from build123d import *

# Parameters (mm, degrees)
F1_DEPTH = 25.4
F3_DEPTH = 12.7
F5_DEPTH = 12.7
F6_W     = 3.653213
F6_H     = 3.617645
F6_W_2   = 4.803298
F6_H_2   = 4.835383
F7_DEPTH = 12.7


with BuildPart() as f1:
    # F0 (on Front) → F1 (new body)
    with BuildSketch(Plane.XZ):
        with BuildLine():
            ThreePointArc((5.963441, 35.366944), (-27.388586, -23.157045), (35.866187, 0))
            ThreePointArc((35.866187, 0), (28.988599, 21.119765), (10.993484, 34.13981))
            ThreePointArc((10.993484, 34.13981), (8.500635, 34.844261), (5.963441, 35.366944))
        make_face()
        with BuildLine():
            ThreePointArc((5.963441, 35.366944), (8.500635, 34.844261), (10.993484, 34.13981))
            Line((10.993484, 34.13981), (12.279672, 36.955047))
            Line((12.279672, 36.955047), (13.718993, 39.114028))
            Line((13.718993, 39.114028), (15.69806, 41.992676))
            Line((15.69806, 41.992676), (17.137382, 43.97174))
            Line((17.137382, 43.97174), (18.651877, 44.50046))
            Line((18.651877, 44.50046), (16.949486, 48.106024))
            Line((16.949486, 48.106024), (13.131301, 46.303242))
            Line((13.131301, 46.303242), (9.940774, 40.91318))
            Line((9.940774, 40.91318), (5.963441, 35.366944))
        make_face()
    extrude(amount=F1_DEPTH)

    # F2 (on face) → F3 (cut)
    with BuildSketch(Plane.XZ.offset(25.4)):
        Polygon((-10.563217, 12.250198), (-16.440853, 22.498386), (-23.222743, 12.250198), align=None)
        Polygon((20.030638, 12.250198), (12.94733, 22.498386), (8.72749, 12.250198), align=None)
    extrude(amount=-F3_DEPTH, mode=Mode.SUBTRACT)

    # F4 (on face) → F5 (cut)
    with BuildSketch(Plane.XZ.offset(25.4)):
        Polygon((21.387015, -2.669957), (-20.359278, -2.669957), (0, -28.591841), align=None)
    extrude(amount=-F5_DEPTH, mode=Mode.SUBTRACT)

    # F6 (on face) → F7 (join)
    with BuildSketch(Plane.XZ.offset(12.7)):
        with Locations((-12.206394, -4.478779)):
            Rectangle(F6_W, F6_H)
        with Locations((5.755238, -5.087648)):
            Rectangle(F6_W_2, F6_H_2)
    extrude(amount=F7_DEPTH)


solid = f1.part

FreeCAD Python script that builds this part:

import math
import FreeCAD as App
import Part
import Sketcher
Q = App.Units.Quantity


def add_polygon(sketch, points):
    """Adds a closed chain of lines whose ends are joined by coincident constraints."""
    first, n = sketch.GeometryCount, len(points)
    for a, b in zip(points, points[1:] + points[:1]):
        sketch.addGeometry(Part.LineSegment(App.Vector(*a, 0), App.Vector(*b, 0)), False)
    for i in range(n):
        sketch.addConstraint(Sketcher.Constraint("Coincident", first + i, 2, first + (i + 1) % n, 1))

doc = App.newDocument("Part")
body = doc.addObject("PartDesign::Body", "Body")

# Sketch on XZ plane
sketch1 = body.newObject("Sketcher::SketchObject", "Sketch")
sketch1.AttachmentSupport = (doc.getObject("XZ_Plane"), [""])
sketch1.MapMode = "FlatFace"
sketch1.addGeometry([
    Part.ArcOfCircle(Part.Circle(App.Vector(0, 0, 0), App.Vector(0, 0, 1), 35.866187), math.radians(80.429029), math.radians(360)),  # 0
    Part.ArcOfCircle(Part.Circle(App.Vector(0, 0, 0), App.Vector(0, 0, 1), 35.866187), math.radians(0.000001), math.radians(72.150735)),  # 1
    Part.LineSegment(App.Vector(10.993484, 34.13981, 0), App.Vector(12.279672, 36.955047, 0)),  # 2
    Part.LineSegment(App.Vector(12.279672, 36.955047, 0), App.Vector(13.718993, 39.114028, 0)),  # 3
    Part.LineSegment(App.Vector(13.718993, 39.114028, 0), App.Vector(15.69806, 41.992676, 0)),  # 4
    Part.LineSegment(App.Vector(15.69806, 41.992676, 0), App.Vector(17.137382, 43.97174, 0)),  # 5
    Part.LineSegment(App.Vector(17.137382, 43.97174, 0), App.Vector(18.651877, 44.50046, 0)),  # 6
    Part.LineSegment(App.Vector(18.651877, 44.50046, 0), App.Vector(16.949486, 48.106024, 0)),  # 7
    Part.LineSegment(App.Vector(16.949486, 48.106024, 0), App.Vector(13.131301, 46.303242, 0)),  # 8
    Part.LineSegment(App.Vector(13.131301, 46.303242, 0), App.Vector(9.940774, 40.91318, 0)),  # 9
    Part.LineSegment(App.Vector(9.940774, 40.91318, 0), App.Vector(5.963441, 35.366944, 0)),  # 10
], False)
sketch1.addConstraint([
    Sketcher.Constraint("Tangent", 0, 2, 1, 1),
    Sketcher.Constraint("Coincident", 1, 2, 2, 1),
    Sketcher.Constraint("Coincident", 2, 2, 3, 1),
    Sketcher.Constraint("Coincident", 3, 2, 4, 1),
    Sketcher.Constraint("Coincident", 4, 2, 5, 1),
    Sketcher.Constraint("Coincident", 5, 2, 6, 1),
    Sketcher.Constraint("Coincident", 6, 2, 7, 1),
    Sketcher.Constraint("Coincident", 7, 2, 8, 1),
    Sketcher.Constraint("Coincident", 8, 2, 9, 1),
    Sketcher.Constraint("Coincident", 9, 2, 10, 1),
    Sketcher.Constraint("Coincident", 10, 2, 0, 1),
    Sketcher.Constraint("Coincident", 0, 3, -1, 1),
    Sketcher.Constraint("Equal", 0, 1),
    Sketcher.Constraint("PointOnObject", 0, 2, -1),
    Sketcher.Constraint("Perpendicular", 7, 8),
    Sketcher.Constraint("DistanceX", -1, 1, 5, 2, Q("0.6747001 in")),
    Sketcher.Constraint("Radius", 0, Q("35.866187 mm")),
    Sketcher.Constraint("DistanceY", 9, 2, 4, 2, Q("0.0424998 in")),
    Sketcher.Constraint("DistanceX", -1, 1, 8, 2, Q("13.131301 mm")),
    Sketcher.Constraint("DistanceX", 1, 2, 5, 2, Q("6.143898 mm")),
    Sketcher.Constraint("DistanceX", 9, 2, 2, 2, Q("2.338898 mm")),
    Sketcher.Constraint("Distance", 2, Q("3.095131 mm")),
    Sketcher.Constraint("Distance", 5, Q("2.447109 mm")),
    Sketcher.Constraint("Distance", 7, Q("3.987258 mm")),
    Sketcher.Constraint("DistanceX", -1, 1, 4, 2, Q("15.69806 mm")),
    Sketcher.Constraint("DistanceY", -1, 1, 5, 2, Q("43.97174 mm")),
    Sketcher.Constraint("DistanceY", -1, 1, 6, 2, Q("44.50046 mm")),
    Sketcher.Constraint("DistanceY", -1, 1, 8, 2, Q("46.303242 mm")),
    Sketcher.Constraint("DistanceX", -1, 1, 10, 2, Q("5.963441 mm")),
    Sketcher.Constraint("DistanceX", 1, 2, 2, 2, Q("1.286188 mm")),
    Sketcher.Constraint("DistanceX", 2, 2, 3, 2, Q("1.439321 mm")),
    Sketcher.Constraint("DistanceY", 2, 2, 3, 2, Q("2.158981 mm")),
    Sketcher.Constraint("DistanceX", 7, 2, 6, 2, Q("1.702391 mm")),
])
pad1 = body.newObject("PartDesign::Pad", "Pad")
pad1.Profile = sketch1
pad1.Length = Q("1 in")

# Sketch on XZ plane
sketch2 = body.newObject("Sketcher::SketchObject", "Sketch001")
sketch2.AttachmentSupport = (doc.getObject("XZ_Plane"), [""])
sketch2.MapMode = "FlatFace"
sketch2.AttachmentOffset = App.Placement(App.Vector(0, 0, 1 * 25.4), App.Rotation())
add_polygon(sketch2, [(-10.563217, 12.250198), (-16.440853, 22.498386), (-23.222743, 12.250198)])  # lines 0-2
add_polygon(sketch2, [(20.030638, 12.250198), (12.94733, 22.498386), (8.72749, 12.250198)])  # lines 3-5
sketch2.addConstraint([
    Sketcher.Constraint("Horizontal", 2),
    Sketcher.Constraint("Horizontal", 5),
    Sketcher.Constraint("Horizontal", 0, 2, 3, 2),
    Sketcher.Constraint("Horizontal", 2, 2, 4, 2),
    Sketcher.Constraint("Distance", 4, Q("11.082978 mm")),
    Sketcher.Constraint("DistanceX", 2, 1, 2, 2, Q("12.659526 mm")),
    Sketcher.Constraint("DistanceX", 5, 1, 5, 2, Q("11.303148 mm")),
    Sketcher.Constraint("DistanceX", -1, 1, 3, 2, Q("12.94733 mm")),
    Sketcher.Constraint("DistanceX", -1, 1, 4, 2, Q("8.72749 mm")),
    Sketcher.Constraint("DistanceX", 1, 2, 0, 2, Q("6.78189 mm")),
    Sketcher.Constraint("DistanceX", 0, 2, 5, 2, Q("36.471491 mm")),
    Sketcher.Constraint("DistanceY", -1, 1, 0, 2, Q("22.498386 mm")),
])
pocket1 = body.newObject("PartDesign::Pocket", "Pocket")
pocket1.Profile = sketch2
pocket1.Length = Q("0.5 in")

# Sketch on XZ plane
sketch3 = body.newObject("Sketcher::SketchObject", "Sketch002")
sketch3.AttachmentSupport = (doc.getObject("XZ_Plane"), [""])
sketch3.MapMode = "FlatFace"
sketch3.AttachmentOffset = App.Placement(App.Vector(0, 0, 1 * 25.4), App.Rotation())
add_polygon(sketch3, [(21.387015, -2.669957), (-20.359278, -2.669957), (0, -28.591841)])  # lines 0-2
sketch3.addConstraint([
    Sketcher.Constraint("Horizontal", 0),
    Sketcher.Constraint("PointOnObject", 1, 2, -2),
    Sketcher.Constraint("Distance", 2, Q("33.60578 mm")),
    Sketcher.Constraint("DistanceX", 0, 2, 0, 1, Q("41.746293 mm")),
    Sketcher.Constraint("DistanceX", 0, 2, -1, 1, Q("20.359278 mm")),
    Sketcher.Constraint("DistanceY", 1, 2, -1, 1, Q("28.591841 mm")),
])
pocket2 = body.newObject("PartDesign::Pocket", "Pocket001")
pocket2.Profile = sketch3
pocket2.Length = Q("0.5 in")

# Sketch on XZ plane
sketch4 = body.newObject("Sketcher::SketchObject", "Sketch003")
sketch4.AttachmentSupport = (doc.getObject("XZ_Plane"), [""])
sketch4.MapMode = "FlatFace"
sketch4.AttachmentOffset = App.Placement(App.Vector(0, 0, 0.5 * 25.4), App.Rotation())
add_polygon(sketch4, [(-14.033, -2.669957), (-14.033, -6.287602), (-10.379788, -6.287602), (-10.379788, -2.669957)])  # lines 0-3
add_polygon(sketch4, [(3.353589, -2.669957), (3.353589, -7.505339), (8.156887, -7.505339), (8.156887, -2.669957)])  # lines 4-7
sketch4.addConstraint([
    Sketcher.Constraint("Vertical", 0),
    Sketcher.Constraint("Horizontal", 1),
    Sketcher.Constraint("Vertical", 2),
    Sketcher.Constraint("Horizontal", 3),
    Sketcher.Constraint("Vertical", 4),
    Sketcher.Constraint("Horizontal", 5),
    Sketcher.Constraint("Vertical", 6),
    Sketcher.Constraint("Horizontal", 7),
    Sketcher.Constraint("Horizontal", 3, 2, 6, 2),
    Sketcher.Constraint("DistanceX", 0, 2, -1, 1, Q("14.033 mm")),
    Sketcher.Constraint("DistanceY", 0, 2, -1, 1, Q("6.287602 mm")),
    Sketcher.Constraint("DistanceX", 1, 1, 1, 2, Q("3.653213 mm")),
    Sketcher.Constraint("DistanceX", 5, 1, 5, 2, Q("4.803298 mm")),
    Sketcher.Constraint("DistanceY", 0, 2, 0, 1, Q("3.617645 mm")),
    Sketcher.Constraint("DistanceY", 4, 2, 4, 1, Q("4.835383 mm")),
    Sketcher.Constraint("DistanceX", -1, 1, 4, 2, Q("3.353589 mm")),
])
pad2 = body.newObject("PartDesign::Pad", "Pad001")
pad2.Profile = sketch4
pad2.Length = Q("0.5 in")

doc.recompute()
